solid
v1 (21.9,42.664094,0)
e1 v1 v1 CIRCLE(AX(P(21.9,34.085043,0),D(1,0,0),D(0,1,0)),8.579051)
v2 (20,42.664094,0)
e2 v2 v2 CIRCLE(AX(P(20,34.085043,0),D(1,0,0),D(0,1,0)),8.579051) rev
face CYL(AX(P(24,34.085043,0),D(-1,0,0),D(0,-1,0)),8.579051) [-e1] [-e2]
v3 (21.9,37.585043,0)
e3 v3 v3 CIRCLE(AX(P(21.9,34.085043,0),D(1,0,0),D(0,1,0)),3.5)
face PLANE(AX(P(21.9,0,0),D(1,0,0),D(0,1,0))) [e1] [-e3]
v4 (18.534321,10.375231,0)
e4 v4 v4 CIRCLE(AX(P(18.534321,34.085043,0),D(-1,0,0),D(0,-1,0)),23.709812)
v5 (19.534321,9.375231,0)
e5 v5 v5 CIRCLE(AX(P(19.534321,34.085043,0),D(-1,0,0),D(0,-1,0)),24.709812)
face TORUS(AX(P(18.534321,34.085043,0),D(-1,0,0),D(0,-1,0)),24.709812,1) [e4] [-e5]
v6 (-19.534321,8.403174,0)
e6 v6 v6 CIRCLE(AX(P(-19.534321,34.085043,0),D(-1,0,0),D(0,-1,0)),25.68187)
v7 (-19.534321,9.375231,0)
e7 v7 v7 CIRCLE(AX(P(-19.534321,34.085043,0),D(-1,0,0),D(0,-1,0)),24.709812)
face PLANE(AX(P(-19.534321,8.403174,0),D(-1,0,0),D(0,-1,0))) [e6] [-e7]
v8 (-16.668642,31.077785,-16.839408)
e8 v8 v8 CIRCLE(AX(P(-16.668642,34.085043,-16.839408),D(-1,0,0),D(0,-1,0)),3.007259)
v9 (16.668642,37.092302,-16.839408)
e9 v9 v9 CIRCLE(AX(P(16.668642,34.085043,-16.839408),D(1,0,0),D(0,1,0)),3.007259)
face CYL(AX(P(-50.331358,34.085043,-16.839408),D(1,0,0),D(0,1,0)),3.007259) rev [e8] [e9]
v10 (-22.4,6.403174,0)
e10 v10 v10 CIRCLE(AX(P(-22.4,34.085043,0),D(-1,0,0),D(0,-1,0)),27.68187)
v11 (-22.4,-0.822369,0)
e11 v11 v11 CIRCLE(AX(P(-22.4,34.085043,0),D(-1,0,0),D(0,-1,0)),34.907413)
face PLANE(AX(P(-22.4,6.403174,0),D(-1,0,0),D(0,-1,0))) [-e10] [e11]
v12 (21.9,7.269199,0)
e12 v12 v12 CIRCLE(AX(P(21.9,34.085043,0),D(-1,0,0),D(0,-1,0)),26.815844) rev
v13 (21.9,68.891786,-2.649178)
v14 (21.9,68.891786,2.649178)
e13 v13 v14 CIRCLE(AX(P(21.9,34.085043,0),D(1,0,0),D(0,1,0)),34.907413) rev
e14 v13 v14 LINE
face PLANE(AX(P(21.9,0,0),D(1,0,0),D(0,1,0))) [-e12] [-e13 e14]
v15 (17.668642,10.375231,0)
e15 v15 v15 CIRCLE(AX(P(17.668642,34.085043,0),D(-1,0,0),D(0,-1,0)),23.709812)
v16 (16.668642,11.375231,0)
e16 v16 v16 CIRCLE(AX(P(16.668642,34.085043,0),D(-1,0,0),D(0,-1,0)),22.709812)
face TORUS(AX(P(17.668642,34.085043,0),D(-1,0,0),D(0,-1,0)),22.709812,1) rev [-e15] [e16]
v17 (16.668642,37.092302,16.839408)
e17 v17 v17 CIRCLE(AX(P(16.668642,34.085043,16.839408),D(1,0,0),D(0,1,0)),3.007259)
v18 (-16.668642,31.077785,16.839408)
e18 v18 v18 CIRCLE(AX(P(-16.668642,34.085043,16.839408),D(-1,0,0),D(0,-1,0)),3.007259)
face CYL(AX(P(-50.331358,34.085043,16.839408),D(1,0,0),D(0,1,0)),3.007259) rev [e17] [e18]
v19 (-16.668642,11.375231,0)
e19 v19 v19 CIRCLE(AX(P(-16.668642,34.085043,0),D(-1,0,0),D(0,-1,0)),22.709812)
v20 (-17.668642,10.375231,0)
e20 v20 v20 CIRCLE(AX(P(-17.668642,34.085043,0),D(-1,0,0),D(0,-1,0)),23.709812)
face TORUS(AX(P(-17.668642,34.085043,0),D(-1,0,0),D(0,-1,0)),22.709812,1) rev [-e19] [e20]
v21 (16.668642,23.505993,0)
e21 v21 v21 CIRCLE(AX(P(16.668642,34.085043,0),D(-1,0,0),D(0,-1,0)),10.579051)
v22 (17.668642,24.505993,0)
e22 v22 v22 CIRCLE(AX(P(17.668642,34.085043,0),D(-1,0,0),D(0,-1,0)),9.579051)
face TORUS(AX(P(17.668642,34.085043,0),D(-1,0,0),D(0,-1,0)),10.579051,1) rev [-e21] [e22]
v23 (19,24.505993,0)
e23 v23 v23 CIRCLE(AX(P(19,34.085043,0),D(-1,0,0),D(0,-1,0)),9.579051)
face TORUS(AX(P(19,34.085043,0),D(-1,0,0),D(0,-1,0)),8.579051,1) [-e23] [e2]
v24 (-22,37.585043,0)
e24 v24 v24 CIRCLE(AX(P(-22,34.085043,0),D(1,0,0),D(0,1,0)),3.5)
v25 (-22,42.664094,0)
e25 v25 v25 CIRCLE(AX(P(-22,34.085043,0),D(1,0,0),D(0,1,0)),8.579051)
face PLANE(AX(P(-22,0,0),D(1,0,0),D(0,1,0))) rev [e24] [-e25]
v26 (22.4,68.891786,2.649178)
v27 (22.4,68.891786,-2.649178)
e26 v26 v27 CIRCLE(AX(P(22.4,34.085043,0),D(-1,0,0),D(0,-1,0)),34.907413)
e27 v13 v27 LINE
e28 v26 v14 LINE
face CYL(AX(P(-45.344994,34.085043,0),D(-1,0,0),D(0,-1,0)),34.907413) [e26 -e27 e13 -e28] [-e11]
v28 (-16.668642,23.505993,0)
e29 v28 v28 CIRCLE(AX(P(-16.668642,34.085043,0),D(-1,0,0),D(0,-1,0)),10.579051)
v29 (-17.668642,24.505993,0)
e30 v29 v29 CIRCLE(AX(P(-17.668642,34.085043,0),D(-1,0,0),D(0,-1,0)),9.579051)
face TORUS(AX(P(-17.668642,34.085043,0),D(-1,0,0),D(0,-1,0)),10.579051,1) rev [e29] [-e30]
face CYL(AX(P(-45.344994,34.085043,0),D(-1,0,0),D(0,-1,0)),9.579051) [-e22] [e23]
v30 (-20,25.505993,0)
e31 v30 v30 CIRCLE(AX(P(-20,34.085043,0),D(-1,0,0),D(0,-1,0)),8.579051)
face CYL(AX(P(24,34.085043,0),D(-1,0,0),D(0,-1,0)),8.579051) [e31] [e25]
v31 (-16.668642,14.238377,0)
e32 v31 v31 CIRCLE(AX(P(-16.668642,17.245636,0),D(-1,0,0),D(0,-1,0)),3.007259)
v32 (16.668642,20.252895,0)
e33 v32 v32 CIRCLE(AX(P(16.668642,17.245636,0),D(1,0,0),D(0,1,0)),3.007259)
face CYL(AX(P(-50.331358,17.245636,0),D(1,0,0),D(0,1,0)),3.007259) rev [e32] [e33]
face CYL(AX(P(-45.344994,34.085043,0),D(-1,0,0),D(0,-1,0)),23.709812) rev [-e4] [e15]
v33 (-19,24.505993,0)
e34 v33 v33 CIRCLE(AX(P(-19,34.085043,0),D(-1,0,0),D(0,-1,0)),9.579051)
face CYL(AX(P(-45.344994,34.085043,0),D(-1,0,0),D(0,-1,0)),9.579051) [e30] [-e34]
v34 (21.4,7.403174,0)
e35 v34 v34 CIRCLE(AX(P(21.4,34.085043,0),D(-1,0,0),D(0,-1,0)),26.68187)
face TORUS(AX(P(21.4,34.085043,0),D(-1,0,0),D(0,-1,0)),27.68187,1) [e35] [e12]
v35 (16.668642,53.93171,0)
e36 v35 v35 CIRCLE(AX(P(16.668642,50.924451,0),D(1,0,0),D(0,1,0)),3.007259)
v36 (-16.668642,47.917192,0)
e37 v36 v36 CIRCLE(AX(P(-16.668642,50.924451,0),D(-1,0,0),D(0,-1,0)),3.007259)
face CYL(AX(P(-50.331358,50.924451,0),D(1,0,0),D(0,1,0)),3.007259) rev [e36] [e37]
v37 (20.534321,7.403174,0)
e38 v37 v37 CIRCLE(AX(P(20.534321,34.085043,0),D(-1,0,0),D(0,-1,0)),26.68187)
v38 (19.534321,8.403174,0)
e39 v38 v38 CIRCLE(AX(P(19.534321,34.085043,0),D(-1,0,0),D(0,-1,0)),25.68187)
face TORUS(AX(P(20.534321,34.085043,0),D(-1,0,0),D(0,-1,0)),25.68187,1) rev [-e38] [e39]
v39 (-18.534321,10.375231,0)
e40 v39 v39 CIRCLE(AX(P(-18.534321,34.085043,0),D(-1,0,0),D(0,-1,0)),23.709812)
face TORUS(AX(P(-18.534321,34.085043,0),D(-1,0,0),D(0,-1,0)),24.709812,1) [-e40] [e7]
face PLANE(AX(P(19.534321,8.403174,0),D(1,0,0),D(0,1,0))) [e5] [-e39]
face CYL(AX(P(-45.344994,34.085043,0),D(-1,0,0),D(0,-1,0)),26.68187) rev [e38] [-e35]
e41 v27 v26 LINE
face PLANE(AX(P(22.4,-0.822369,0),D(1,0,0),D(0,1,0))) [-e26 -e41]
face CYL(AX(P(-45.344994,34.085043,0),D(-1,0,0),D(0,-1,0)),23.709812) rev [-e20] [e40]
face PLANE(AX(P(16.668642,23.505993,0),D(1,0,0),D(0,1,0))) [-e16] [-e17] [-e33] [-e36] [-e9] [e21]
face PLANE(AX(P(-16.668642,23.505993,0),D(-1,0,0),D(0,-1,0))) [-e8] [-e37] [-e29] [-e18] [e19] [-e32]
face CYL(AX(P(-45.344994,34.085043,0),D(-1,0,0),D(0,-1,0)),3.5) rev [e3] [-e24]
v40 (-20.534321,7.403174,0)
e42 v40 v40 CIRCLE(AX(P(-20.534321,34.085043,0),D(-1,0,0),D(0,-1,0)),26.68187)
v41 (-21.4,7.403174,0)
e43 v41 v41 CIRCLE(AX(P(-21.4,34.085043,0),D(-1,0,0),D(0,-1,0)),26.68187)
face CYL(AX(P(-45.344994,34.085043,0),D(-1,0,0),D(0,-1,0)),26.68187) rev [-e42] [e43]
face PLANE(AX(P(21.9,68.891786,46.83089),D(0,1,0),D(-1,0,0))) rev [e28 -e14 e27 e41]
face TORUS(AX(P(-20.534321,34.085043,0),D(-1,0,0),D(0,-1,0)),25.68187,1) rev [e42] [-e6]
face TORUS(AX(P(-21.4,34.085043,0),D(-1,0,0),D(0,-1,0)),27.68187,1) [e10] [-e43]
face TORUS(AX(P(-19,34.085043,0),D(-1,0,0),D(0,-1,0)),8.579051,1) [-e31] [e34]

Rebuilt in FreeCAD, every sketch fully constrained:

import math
import FreeCAD as App
import Part
import Sketcher


def add_polygon(sketch, points):
    """Adds a closed chain of lines whose ends are joined by coincident constraints."""
    first, n = sketch.GeometryCount, len(points)
    for a, b in zip(points, points[1:] + points[:1]):
        sketch.addGeometry(Part.LineSegment(App.Vector(*a, 0), App.Vector(*b, 0)), False)
    for i in range(n):
        sketch.addConstraint(Sketcher.Constraint("Coincident", first + i, 2, first + (i + 1) % n, 1))

doc = App.newDocument("Part")
params = doc.addObject("Spreadsheet::Sheet", "Params")
for row, (alias, value) in enumerate([
    ("sketch1_radius", "1 mm"),
    ("sketch1_width", "40 mm"),
    ("sketch1_width2", "44.8 mm"),
    ("revolution_angle", "360 deg"),
    ("pocket1_length", "67 mm"),
    ("sketch3_diameter", "7 mm"),
    ("pad1_length", "4 mm"),
    ("pad1_length2", "44 mm"),
    ("pocket2_length", "2 mm"),
    ("pocket3_length", "2 mm"),
    ("pocket4_length", "0.5 mm"),
    ("pocket5_length", "16.5 mm"),
], start=1):
    params.set(f"A{row}", alias)
    params.set(f"B{row}", "=" + value)
    params.setAlias(f"B{row}", alias)

body = doc.addObject("PartDesign::Body", "Body")

sketch1 = doc.addObject("Sketcher::SketchObject", "Sketch")
body.addObject(sketch1)
sketch1.AttachmentSupport = (doc.XY_Plane, [""])
sketch1.MapMode = "FlatFace"
sketch1.addGeometry([
    Part.LineSegment(App.Vector(20, 30.6, 0), App.Vector(-20, 30.6, 0)),
    Part.LineSegment(App.Vector(-20, 30.6, 0), App.Vector(-20, 25.5, 0)),
    Part.ArcOfCircle(Part.Circle(App.Vector(-19, 25.5, 0), App.Vector(0, 0, 1), 1), math.radians(-180), math.radians(-90)),
    Part.LineSegment(App.Vector(-19, 24.5, 0), App.Vector(-17.7, 24.5, 0)),
    Part.ArcOfCircle(Part.Circle(App.Vector(-17.7, 23.5, 0), App.Vector(0, 0, 1), 1), math.radians(0), math.radians(90)),
    Part.LineSegment(App.Vector(-16.7, 23.5, 0), App.Vector(-16.7, 11.4, 0)),
    Part.ArcOfCircle(Part.Circle(App.Vector(-17.7, 11.4, 0), App.Vector(0, 0, 1), 1), math.radians(-90), math.radians(0)),
    Part.LineSegment(App.Vector(-17.7, 10.4, 0), App.Vector(-18.5, 10.4, 0)),
    Part.ArcOfCircle(Part.Circle(App.Vector(-18.5, 9.4, 0), App.Vector(0, 0, 1), 1), math.radians(90), math.radians(180)),
    Part.LineSegment(App.Vector(-19.5, 9.4, 0), App.Vector(-19.5, 8.4, 0)),
    Part.ArcOfCircle(Part.Circle(App.Vector(-20.5, 8.4, 0), App.Vector(0, 0, 1), 1), math.radians(-90), math.radians(0)),
    Part.LineSegment(App.Vector(-20.5, 7.4, 0), App.Vector(-21.4, 7.4, 0)),
    Part.ArcOfCircle(Part.Circle(App.Vector(-21.4, 6.4, 0), App.Vector(0, 0, 1), 1), math.radians(90), math.radians(180)),
    Part.LineSegment(App.Vector(-22.4, 6.4, 0), App.Vector(-22.4, -0.8, 0)),
    Part.LineSegment(App.Vector(-22.4, -0.8, 0), App.Vector(22.4, -0.8, 0)),
    Part.LineSegment(App.Vector(22.4, -0.8, 0), App.Vector(22.4, 6.4, 0)),
    Part.ArcOfCircle(Part.Circle(App.Vector(21.4, 6.4, 0), App.Vector(0, 0, 1), 1), math.radians(0), math.radians(90)),
    Part.LineSegment(App.Vector(21.4, 7.4, 0), App.Vector(20.5, 7.4, 0)),
    Part.ArcOfCircle(Part.Circle(App.Vector(20.5, 8.4, 0), App.Vector(0, 0, 1), 1), math.radians(180), math.radians(270)),
    Part.LineSegment(App.Vector(19.5, 8.4, 0), App.Vector(19.5, 9.4, 0)),
    Part.ArcOfCircle(Part.Circle(App.Vector(18.5, 9.4, 0), App.Vector(0, 0, 1), 1), math.radians(0), math.radians(90)),
    Part.LineSegment(App.Vector(18.5, 10.4, 0), App.Vector(17.7, 10.4, 0)),
    Part.ArcOfCircle(Part.Circle(App.Vector(17.7, 11.4, 0), App.Vector(0, 0, 1), 1), math.radians(-180), math.radians(-90)),
    Part.LineSegment(App.Vector(16.7, 11.4, 0), App.Vector(16.7, 23.5, 0)),
    Part.ArcOfCircle(Part.Circle(App.Vector(17.7, 23.5, 0), App.Vector(0, 0, 1), 1), math.radians(90), math.radians(180)),
    Part.LineSegment(App.Vector(17.7, 24.5, 0), App.Vector(19, 24.5, 0)),
    Part.ArcOfCircle(Part.Circle(App.Vector(19, 25.5, 0), App.Vector(0, 0, 1), 1), math.radians(-90), math.radians(0)),
    Part.LineSegment(App.Vector(20, 25.5, 0), App.Vector(20, 30.6, 0)),
], False)
sketch1.addGeometry(Part.LineSegment(App.Vector(-22.4, 34.1, 0), App.Vector(22.4, 34.1, 0)), True)
sketch1.addConstraint([
    Sketcher.Constraint("Coincident", 0, 2, 1, 1),
    Sketcher.Constraint("Tangent", 1, 2, 2, 1),
    Sketcher.Constraint("Tangent", 2, 2, 3, 1),
    Sketcher.Constraint("Tangent", 3, 2, 4, 2),
    Sketcher.Constraint("Tangent", 4, 1, 5, 1),
    Sketcher.Constraint("Tangent", 5, 2, 6, 2),
    Sketcher.Constraint("Tangent", 6, 1, 7, 1),
    Sketcher.Constraint("Tangent", 7, 2, 8, 1),
    Sketcher.Constraint("Tangent", 8, 2, 9, 1),
    Sketcher.Constraint("Tangent", 9, 2, 10, 2),
    Sketcher.Constraint("Tangent", 10, 1, 11, 1),
    Sketcher.Constraint("Tangent", 11, 2, 12, 1),
    Sketcher.Constraint("Tangent", 12, 2, 13, 1),
    Sketcher.Constraint("Coincident", 13, 2, 14, 1),
    Sketcher.Constraint("Coincident", 14, 2, 15, 1),
    Sketcher.Constraint("Tangent", 15, 2, 16, 1),
    Sketcher.Constraint("Tangent", 16, 2, 17, 1),
    Sketcher.Constraint("Tangent", 17, 2, 18, 2),
    Sketcher.Constraint("Tangent", 18, 1, 19, 1),
    Sketcher.Constraint("Tangent", 19, 2, 20, 1),
    Sketcher.Constraint("Tangent", 20, 2, 21, 1),
    Sketcher.Constraint("Tangent", 21, 2, 22, 2),
    Sketcher.Constraint("Tangent", 22, 1, 23, 1),
    Sketcher.Constraint("Tangent", 23, 2, 24, 2),
    Sketcher.Constraint("Tangent", 24, 1, 25, 1),
    Sketcher.Constraint("Tangent", 25, 2, 26, 1),
    Sketcher.Constraint("Tangent", 26, 2, 27, 1),
    Sketcher.Constraint("Coincident", 27, 2, 0, 1),
    Sketcher.Constraint("Horizontal", 0),
    Sketcher.Constraint("Vertical", 1),
    Sketcher.Constraint("Horizontal", 3),
    Sketcher.Constraint("Vertical", 5),
    Sketcher.Constraint("Horizontal", 7),
    Sketcher.Constraint("Vertical", 9),
    Sketcher.Constraint("Horizontal", 11),
    Sketcher.Constraint("Vertical", 13),
    Sketcher.Constraint("Horizontal", 14),
    Sketcher.Constraint("Vertical", 15),
    Sketcher.Constraint("Horizontal", 17),
    Sketcher.Constraint("Vertical", 19),
    Sketcher.Constraint("Horizontal", 21),
    Sketcher.Constraint("Vertical", 23),
    Sketcher.Constraint("Horizontal", 25),
    Sketcher.Constraint("Vertical", 27),
    Sketcher.Constraint("Horizontal", 28),
    Sketcher.Constraint("Equal", 2, 4),
    Sketcher.Constraint("Equal", 4, 6),
    Sketcher.Constraint("Equal", 6, 8),
    Sketcher.Constraint("Equal", 8, 10),
    Sketcher.Constraint("Equal", 10, 12),
    Sketcher.Constraint("Equal", 12, 16),
    Sketcher.Constraint("Equal", 16, 18),
    Sketcher.Constraint("Equal", 18, 20),
    Sketcher.Constraint("Equal", 20, 22),
    Sketcher.Constraint("Equal", 22, 24),
    Sketcher.Constraint("Equal", 24, 26),
    Sketcher.Constraint("Symmetric", 12, 3, 16, 3, -2),
    Sketcher.Constraint("Symmetric", 8, 3, 20, 3, -2),
    Sketcher.Constraint("Symmetric", 4, 3, 24, 3, -2),
    Sketcher.Constraint("Vertical", 13, 2, 28, 1),
    Sketcher.Constraint("Vertical", 15, 2, 28, 2),
    Sketcher.Constraint("Equal", 7, 11),
    Sketcher.Constraint("Equal", 3, 25),
    Sketcher.Constraint("Radius", 2, 1.0),
    Sketcher.Constraint("DistanceX", 0, 2, 0, 1, 40.0),
    Sketcher.Constraint("DistanceX", 14, 1, 14, 2, 44.8),
    Sketcher.Constraint("DistanceY", 0, 2, 28, 1, 3.5),
    Sketcher.Constraint("DistanceX", 7, 2, 7, 1, 0.865679),
    Sketcher.Constraint("DistanceY", 1, 2, 1, 1, 5.079051),
    Sketcher.Constraint("DistanceY", 5, 2, 5, 1, 12.130761),
    Sketcher.Constraint("DistanceY", 14, 2, 20, 3, 10.197601),
    Sketcher.Constraint("DistanceY", 9, 2, 9, 1, 0.972057),
    Sketcher.Constraint("DistanceY", -1, 1, 6, 3, 11.375231),
])
sketch1.setExpression("Constraints[63]", "Params.sketch1_radius")
sketch1.setExpression("Constraints[64]", "Params.sketch1_width")
sketch1.setExpression("Constraints[65]", "Params.sketch1_width2")
revolution = doc.addObject("PartDesign::Revolution", "Revolution")
body.addObject(revolution)
revolution.Profile = sketch1
revolution.ReferenceAxis = (sketch1, ["Axis0"])
revolution.setExpression("Angle", "Params.revolution_angle")

sketch2 = doc.addObject("Sketcher::SketchObject", "Sketch001")
body.addObject(sketch2)
sketch2.AttachmentSupport = (doc.YZ_Plane, [""])
sketch2.MapMode = "FlatFace"
sketch2.AttachmentOffset = App.Placement(App.Vector(0, 0, 16.668642), App.Rotation())
sketch2.addGeometry([
    Part.Circle(App.Vector(50.9, 0, 0), App.Vector(0, 0, 1), 3),
    Part.Circle(App.Vector(34.1, -16.8, 0), App.Vector(0, 0, 1), 3),
    Part.Circle(App.Vector(17.2, 0, 0), App.Vector(0, 0, 1), 3),
    Part.Circle(App.Vector(34.1, 16.8, 0), App.Vector(0, 0, 1), 3),
], False)
sketch2.addConstraint([
    Sketcher.Constraint("Equal", 0, 1),
    Sketcher.Constraint("Equal", 1, 2),
    Sketcher.Constraint("Equal", 2, 3),
    Sketcher.Constraint("Symmetric", 1, 3, 3, 3, -1),
    Sketcher.Constraint("PointOnObject", 0, 3, -1),
    Sketcher.Constraint("PointOnObject", 2, 3, -1),
    Sketcher.Constraint("Diameter", 0, 6.014518),
    Sketcher.Constraint("DistanceX", -1, 1, 0, 3, 50.924451),
    Sketcher.Constraint("DistanceX", -1, 1, 1, 3, 34.085043),
    Sketcher.Constraint("DistanceY", 1, 3, -1, 1, 16.839408),
    Sketcher.Constraint("DistanceX", -1, 1, 2, 3, 17.245636),
])
pocket1 = doc.addObject("PartDesign::Pocket", "Pocket")
body.addObject(pocket1)
pocket1.Profile = sketch2
pocket1.setExpression("Length", "Params.pocket1_length")

sketch3 = doc.addObject("Sketcher::SketchObject", "Sketch002")
body.addObject(sketch3)
sketch3.AttachmentSupport = (doc.YZ_Plane, [""])
sketch3.MapMode = "FlatFace"
sketch3.AttachmentOffset = App.Placement(App.Vector(0, 0, 20), App.Rotation())
sketch3.addGeometry([
    Part.Circle(App.Vector(34.1, 0, 0), App.Vector(0, 0, 1), 8.6),
    Part.Circle(App.Vector(34.1, 0, 0), App.Vector(0, 0, 1), 3.5),
], False)
sketch3.addConstraint([
    Sketcher.Constraint("Coincident", 1, 3, 0, 3),
    Sketcher.Constraint("PointOnObject", 0, 3, -1),
    Sketcher.Constraint("Diameter", 1, 7.0),
    Sketcher.Constraint("Diameter", 0, 17.158102),
    Sketcher.Constraint("DistanceX", -1, 1, 0, 3, 34.085043),
])
sketch3.setExpression("Constraints[2]", "Params.sketch3_diameter")
pad1 = doc.addObject("PartDesign::Pad", "Pad")
body.addObject(pad1)
pad1.Profile = sketch3
pad1.Type = "TwoLengths"
pad1.setExpression("Length", "Params.pad1_length")
pad1.setExpression("Length2", "Params.pad1_length2")

sketch4 = doc.addObject("Sketcher::SketchObject", "Sketch003")
body.addObject(sketch4)
sketch4.AttachmentSupport = (doc.YZ_Plane, [""])
sketch4.MapMode = "FlatFace"
sketch4.AttachmentOffset = App.Placement(App.Vector(0, 0, -24), App.Rotation())
add_polygon(sketch4, [(43, -15), (21, -15), (21, 12), (43, 12)])
sketch4.addConstraint([
    Sketcher.Constraint("Horizontal", 0),
    Sketcher.Constraint("Vertical", 1),
    Sketcher.Constraint("Horizontal", 2),
    Sketcher.Constraint("Vertical", 3),
    Sketcher.Constraint("DistanceY", 1, 1, 1, 2, 27.472929),
    Sketcher.Constraint("DistanceX", 0, 2, 0, 1, 21.134738),
    Sketcher.Constraint("DistanceX", -1, 1, 0, 2, 21.41899),
    Sketcher.Constraint("DistanceY", 0, 2, -1, 1, 15.171909),
])
pocket2 = doc.addObject("PartDesign::Pocket", "Pocket001")
body.addObject(pocket2)
pocket2.Profile = sketch4
pocket2.setExpression("Length", "Params.pocket2_length")
pocket2.Reversed = True

sketch5 = doc.addObject("Sketcher::SketchObject", "Sketch004")
body.addObject(sketch5)
sketch5.AttachmentSupport = (doc.YZ_Plane, [""])
sketch5.MapMode = "FlatFace"
sketch5.AttachmentOffset = App.Placement(App.Vector(0, 0, 24), App.Rotation())
add_polygon(sketch5, [(46, 15), (22, 15), (22, -13), (46, -13)])
sketch5.addConstraint([
    Sketcher.Constraint("Horizontal", 0),
    Sketcher.Constraint("Vertical", 1),
    Sketcher.Constraint("Horizontal", 2),
    Sketcher.Constraint("Vertical", 3),
    Sketcher.Constraint("DistanceX", 0, 2, 0, 1, 23.658849),
    Sketcher.Constraint("DistanceY", 1, 2, 1, 1, 27.650671),
    Sketcher.Constraint("DistanceY", 1, 2, -1, 1, 12.754359),
    Sketcher.Constraint("DistanceX", -1, 1, 2, 2, 46.109191),
])
pocket3 = doc.addObject("PartDesign::Pocket", "Pocket002")
body.addObject(pocket3)
pocket3.Profile = sketch5
pocket3.setExpression("Length", "Params.pocket3_length")

sketch6 = doc.addObject("Sketcher::SketchObject", "Sketch005")
body.addObject(sketch6)
sketch6.AttachmentSupport = (doc.YZ_Plane, [""])
sketch6.MapMode = "FlatFace"
sketch6.AttachmentOffset = App.Placement(App.Vector(0, 0, 22.4), App.Rotation())
add_polygon(sketch6, [(69, 47), (-5, 47), (-5, -59), (69, -59)])
sketch6.addConstraint([
    Sketcher.Constraint("Horizontal", 0),
    Sketcher.Constraint("Vertical", 1),
    Sketcher.Constraint("Horizontal", 2),
    Sketcher.Constraint("Vertical", 3),
    Sketcher.Constraint("DistanceY", 1, 2, 1, 1, 105.734608),
    Sketcher.Constraint("DistanceX", 0, 2, 0, 1, 74.092115),
    Sketcher.Constraint("DistanceX", 0, 2, -1, 1, 5.200329),
    Sketcher.Constraint("DistanceY", -1, 1, 0, 2, 46.83089),
])
pocket4 = doc.addObject("PartDesign::Pocket", "Pocket003")
body.addObject(pocket4)
pocket4.Profile = sketch6
pocket4.setExpression("Length", "Params.pocket4_length")

sketch7 = doc.addObject("Sketcher::SketchObject", "Sketch006")
body.addObject(sketch7)
sketch7.AttachmentSupport = (doc.YZ_Plane, [""])
sketch7.MapMode = "FlatFace"
sketch7.AttachmentOffset = App.Placement(App.Vector(0, 0, -22), App.Rotation())
add_polygon(sketch7, [(46, -13), (21, -13), (21, 17), (46, 17)])
sketch7.addConstraint([
    Sketcher.Constraint("Horizontal", 0),
    Sketcher.Constraint("Vertical", 1),
    Sketcher.Constraint("Horizontal", 2),
    Sketcher.Constraint("Vertical", 3),
    Sketcher.Constraint("DistanceX", 0, 2, 0, 1, 24.437741),
    Sketcher.Constraint("DistanceY", 1, 1, 1, 2, 29.792624),
    Sketcher.Constraint("DistanceY", 0, 2, -1, 1, 12.85172),
    Sketcher.Constraint("DistanceX", -1, 1, 0, 2, 21.379365),
])
pocket5 = doc.addObject("PartDesign::Pocket", "Pocket004")
body.addObject(pocket5)
pocket5.Profile = sketch7
pocket5.setExpression("Length", "Params.pocket5_length")

doc.recompute()
